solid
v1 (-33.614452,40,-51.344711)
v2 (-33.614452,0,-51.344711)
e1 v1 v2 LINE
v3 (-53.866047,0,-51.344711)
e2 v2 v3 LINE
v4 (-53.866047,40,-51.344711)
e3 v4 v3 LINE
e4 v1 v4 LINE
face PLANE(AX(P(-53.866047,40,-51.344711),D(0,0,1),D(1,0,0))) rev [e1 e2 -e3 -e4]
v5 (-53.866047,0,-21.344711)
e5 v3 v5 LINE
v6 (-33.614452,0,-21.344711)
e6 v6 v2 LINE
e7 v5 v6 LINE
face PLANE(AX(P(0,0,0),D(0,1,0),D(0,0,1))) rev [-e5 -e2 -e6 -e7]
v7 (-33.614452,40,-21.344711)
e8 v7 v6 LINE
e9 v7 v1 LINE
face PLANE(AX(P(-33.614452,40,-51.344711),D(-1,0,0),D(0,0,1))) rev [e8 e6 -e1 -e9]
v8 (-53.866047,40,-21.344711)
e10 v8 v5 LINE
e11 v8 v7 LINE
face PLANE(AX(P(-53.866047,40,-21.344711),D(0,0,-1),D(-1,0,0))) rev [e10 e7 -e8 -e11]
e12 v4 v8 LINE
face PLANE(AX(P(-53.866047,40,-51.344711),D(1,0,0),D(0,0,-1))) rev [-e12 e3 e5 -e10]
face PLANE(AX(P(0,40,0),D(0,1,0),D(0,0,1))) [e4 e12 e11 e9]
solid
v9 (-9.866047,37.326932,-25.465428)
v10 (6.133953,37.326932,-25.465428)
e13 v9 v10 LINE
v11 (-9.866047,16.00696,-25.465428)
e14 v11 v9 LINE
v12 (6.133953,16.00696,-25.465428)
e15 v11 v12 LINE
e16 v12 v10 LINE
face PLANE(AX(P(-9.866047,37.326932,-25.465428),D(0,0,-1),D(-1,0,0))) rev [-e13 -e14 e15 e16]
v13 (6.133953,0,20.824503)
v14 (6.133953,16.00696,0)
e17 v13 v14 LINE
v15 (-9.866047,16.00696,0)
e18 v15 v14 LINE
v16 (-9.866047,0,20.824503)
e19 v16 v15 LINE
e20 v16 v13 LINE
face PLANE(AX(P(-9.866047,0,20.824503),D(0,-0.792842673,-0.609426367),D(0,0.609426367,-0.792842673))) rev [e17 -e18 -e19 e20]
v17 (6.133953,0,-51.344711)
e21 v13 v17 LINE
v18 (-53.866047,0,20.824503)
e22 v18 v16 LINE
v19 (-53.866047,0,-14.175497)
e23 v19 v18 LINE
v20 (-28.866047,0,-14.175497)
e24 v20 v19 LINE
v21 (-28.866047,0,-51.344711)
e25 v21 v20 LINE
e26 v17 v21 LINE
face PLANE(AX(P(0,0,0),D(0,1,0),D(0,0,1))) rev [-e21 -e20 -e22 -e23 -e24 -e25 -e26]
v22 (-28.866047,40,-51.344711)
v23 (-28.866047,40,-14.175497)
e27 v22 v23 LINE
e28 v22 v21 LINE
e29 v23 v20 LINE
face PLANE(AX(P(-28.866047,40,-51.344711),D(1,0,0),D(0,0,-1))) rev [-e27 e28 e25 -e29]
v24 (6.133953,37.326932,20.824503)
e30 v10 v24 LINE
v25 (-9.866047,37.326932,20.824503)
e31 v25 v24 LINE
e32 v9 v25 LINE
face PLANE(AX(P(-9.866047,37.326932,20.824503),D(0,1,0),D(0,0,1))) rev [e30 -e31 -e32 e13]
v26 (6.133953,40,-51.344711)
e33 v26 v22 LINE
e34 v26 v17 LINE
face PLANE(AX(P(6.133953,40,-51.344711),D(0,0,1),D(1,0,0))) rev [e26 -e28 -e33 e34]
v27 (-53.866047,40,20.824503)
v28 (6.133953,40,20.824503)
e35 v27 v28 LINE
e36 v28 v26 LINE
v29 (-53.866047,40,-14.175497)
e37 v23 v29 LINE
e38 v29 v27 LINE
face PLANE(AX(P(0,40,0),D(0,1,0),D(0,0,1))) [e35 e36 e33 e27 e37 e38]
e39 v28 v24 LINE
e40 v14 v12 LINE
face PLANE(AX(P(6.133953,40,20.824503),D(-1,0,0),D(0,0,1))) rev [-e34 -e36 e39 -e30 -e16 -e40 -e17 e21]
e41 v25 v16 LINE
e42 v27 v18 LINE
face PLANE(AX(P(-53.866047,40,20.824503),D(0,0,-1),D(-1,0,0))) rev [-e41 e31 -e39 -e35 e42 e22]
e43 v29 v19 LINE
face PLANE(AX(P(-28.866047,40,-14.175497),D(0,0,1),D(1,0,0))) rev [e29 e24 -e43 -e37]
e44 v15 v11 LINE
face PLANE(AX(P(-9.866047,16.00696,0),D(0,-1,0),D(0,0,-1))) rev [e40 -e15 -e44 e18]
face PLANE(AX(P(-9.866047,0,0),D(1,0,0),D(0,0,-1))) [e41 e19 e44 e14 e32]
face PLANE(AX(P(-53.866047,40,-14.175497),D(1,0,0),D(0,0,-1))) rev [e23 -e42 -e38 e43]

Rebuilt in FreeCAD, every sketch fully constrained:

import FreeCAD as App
import Part
import Sketcher
Q = App.Units.Quantity


def add_polygon(sketch, points):
    """Adds a closed chain of lines whose ends are joined by coincident constraints."""
    first, n = sketch.GeometryCount, len(points)
    for a, b in zip(points, points[1:] + points[:1]):
        sketch.addGeometry(Part.LineSegment(App.Vector(*a, 0), App.Vector(*b, 0)), False)
    for i in range(n):
        sketch.addConstraint(Sketcher.Constraint("Coincident", first + i, 2, first + (i + 1) % n, 1))

doc = App.newDocument("Part")
body = doc.addObject("PartDesign::Body", "Body")

sketch1 = body.newObject("Sketcher::SketchObject", "Sketch")
sketch1.AttachmentSupport = (doc.getObject("XZ_Plane"), [""])
sketch1.MapMode = "FlatFace"
add_polygon(sketch1, [(-53.866047, -14.175497), (-53.866047, 20.824503), (6.133953, 20.824503), (6.133953, -51.344711), (-28.866047, -51.344711), (-28.866047, -14.175497)])
sketch1.addConstraint(Sketcher.Constraint("Vertical", 0))
sketch1.addConstraint(Sketcher.Constraint("Horizontal", 1))
sketch1.addConstraint(Sketcher.Constraint("Vertical", 2))
sketch1.addConstraint(Sketcher.Constraint("Horizontal", 3))
sketch1.addConstraint(Sketcher.Constraint("Vertical", 4))
sketch1.addConstraint(Sketcher.Constraint("Horizontal", 5))
sketch1.addConstraint(Sketcher.Constraint("Equal", 3, 0))
sketch1.addConstraint(Sketcher.Constraint("DistanceX", 1, 1, 1, 2, Q("60 mm")))
sketch1.addConstraint(Sketcher.Constraint("DistanceX", 3, 2, 3, 1, Q("35 mm")))
sketch1.addConstraint(Sketcher.Constraint("DistanceY", 2, 2, 2, 1, Q("72.169214 mm")))
sketch1.addConstraint(Sketcher.Constraint("DistanceY", 2, 2, -1, 1, Q("51.344711 mm")))
sketch1.addConstraint(Sketcher.Constraint("DistanceX", 0, 2, -1, 1, Q("53.866047 mm")))
pad1 = body.newObject("PartDesign::Pad", "Pad")
pad1.Profile = sketch1
pad1.Length = 40
pad1.Reversed = True

sketch2 = body.newObject("Sketcher::SketchObject", "Sketch001")
sketch2.AttachmentSupport = (doc.getObject("YZ_Plane"), [""])
sketch2.MapMode = "FlatFace"
sketch2.AttachmentOffset = App.Placement(App.Vector(0, 0, 6.133953), App.Rotation())
add_polygon(sketch2, [(37.326932, -25.465428), (37.326932, 20.824503), (0, 20.824503), (16.00696, 0), (16.00696, -25.465428)])
sketch2.addConstraint(Sketcher.Constraint("Vertical", 0))
sketch2.addConstraint(Sketcher.Constraint("Horizontal", 1))
sketch2.addConstraint(Sketcher.Constraint("Vertical", 3))
sketch2.addConstraint(Sketcher.Constraint("Horizontal", 4))
sketch2.addConstraint(Sketcher.Constraint("PointOnObject", 1, 2, -2))
sketch2.addConstraint(Sketcher.Constraint("PointOnObject", 2, 2, -1))
sketch2.addConstraint(Sketcher.Constraint("DistanceX", 1, 2, 1, 1, Q("37.326932 mm")))
sketch2.addConstraint(Sketcher.Constraint("DistanceX", 4, 1, 4, 2, Q("21.319972 mm")))
sketch2.addConstraint(Sketcher.Constraint("DistanceY", 0, 1, 0, 2, Q("46.289931 mm")))
sketch2.addConstraint(Sketcher.Constraint("DistanceY", 3, 2, 3, 1, Q("25.465428 mm")))
pocket1 = body.newObject("PartDesign::Pocket", "Pocket")
pocket1.Profile = sketch2
pocket1.Length = 16
body2 = doc.addObject("PartDesign::Body", "Body001")

sketch3 = body2.newObject("Sketcher::SketchObject", "Sketch002")
sketch3.AttachmentSupport = (doc.getObject("XZ_Plane001"), [""])
sketch3.MapMode = "FlatFace"
add_polygon(sketch3, [(-53.866047, -51.344711), (-53.866047, -21.344711), (-33.614452, -21.344711), (-33.614452, -51.344711)])
sketch3.addConstraint(Sketcher.Constraint("Vertical", 0))
sketch3.addConstraint(Sketcher.Constraint("Horizontal", 1))
sketch3.addConstraint(Sketcher.Constraint("Vertical", 2))
sketch3.addConstraint(Sketcher.Constraint("Horizontal", 3))
sketch3.addConstraint(Sketcher.Constraint("DistanceY", 0, 1, 0, 2, Q("30 mm")))
sketch3.addConstraint(Sketcher.Constraint("DistanceX", 1, 1, 1, 2, Q("20.251594 mm")))
sketch3.addConstraint(Sketcher.Constraint("DistanceY", 0, 2, -1, 1, Q("21.344711 mm")))
sketch3.addConstraint(Sketcher.Constraint("DistanceX", 0, 2, -1, 1, Q("53.866047 mm")))
pad2 = body2.newObject("PartDesign::Pad", "Pad001")
pad2.Profile = sketch3
pad2.Length = 40
pad2.Reversed = True

doc.recompute()
